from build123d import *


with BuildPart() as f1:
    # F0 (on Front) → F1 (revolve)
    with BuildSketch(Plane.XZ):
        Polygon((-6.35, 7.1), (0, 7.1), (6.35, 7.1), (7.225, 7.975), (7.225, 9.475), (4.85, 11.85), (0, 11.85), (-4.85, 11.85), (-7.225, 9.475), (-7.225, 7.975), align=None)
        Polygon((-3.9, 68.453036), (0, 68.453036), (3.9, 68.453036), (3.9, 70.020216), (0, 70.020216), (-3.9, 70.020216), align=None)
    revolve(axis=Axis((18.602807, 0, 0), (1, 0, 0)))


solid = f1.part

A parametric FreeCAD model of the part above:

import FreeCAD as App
import Part
import Sketcher

doc = App.newDocument("Part")
body = doc.addObject("PartDesign::Body", "Body")
body.AllowCompound = True

# Sketch on XZ plane
sketch1 = body.newObject("Sketcher::SketchObject", "Sketch")
sketch1.AttachmentSupport = (doc.getObject("XZ_Plane"), [""])
sketch1.MapMode = "FlatFace"
sketch1.addGeometry(Part.LineSegment(App.Vector(-6.3, 7.1, 0), App.Vector(6.3, 7.1, 0)), False)
sketch1.addGeometry(Part.LineSegment(App.Vector(6.3, 7.1, 0), App.Vector(7.2, 8, 0)), False)
sketch1.addGeometry(Part.LineSegment(App.Vector(7.2, 8, 0), App.Vector(7.2, 9.5, 0)), False)
sketch1.addGeometry(Part.LineSegment(App.Vector(7.2, 9.5, 0), App.Vector(4.8, 11.8, 0)), False)
sketch1.addGeometry(Part.LineSegment(App.Vector(4.8, 11.8, 0), App.Vector(-4.8, 11.8, 0)), False)
sketch1.addGeometry(Part.LineSegment(App.Vector(-4.8, 11.8, 0), App.Vector(-7.2, 9.5, 0)), False)
sketch1.addGeometry(Part.LineSegment(App.Vector(-7.2, 9.5, 0), App.Vector(-7.2, 8, 0)), False)
sketch1.addGeometry(Part.LineSegment(App.Vector(-7.2, 8, 0), App.Vector(-6.3, 7.1, 0)), False)
sketch1.addGeometry(Part.LineSegment(App.Vector(-3.9, 68.5, 0), App.Vector(3.9, 68.5, 0)), False)
sketch1.addGeometry(Part.LineSegment(App.Vector(3.9, 68.5, 0), App.Vector(3.9, 70, 0)), False)
sketch1.addGeometry(Part.LineSegment(App.Vector(3.9, 70, 0), App.Vector(-3.9, 70, 0)), False)
sketch1.addGeometry(Part.LineSegment(App.Vector(-3.9, 70, 0), App.Vector(-3.9, 68.5, 0)), False)
sketch1.addConstraint(Sketcher.Constraint("Coincident", 0, 2, 1, 1))
sketch1.addConstraint(Sketcher.Constraint("Coincident", 1, 2, 2, 1))
sketch1.addConstraint(Sketcher.Constraint("Coincident", 2, 2, 3, 1))
sketch1.addConstraint(Sketcher.Constraint("Coincident", 3, 2, 4, 1))
sketch1.addConstraint(Sketcher.Constraint("Coincident", 4, 2, 5, 1))
sketch1.addConstraint(Sketcher.Constraint("Coincident", 5, 2, 6, 1))
sketch1.addConstraint(Sketcher.Constraint("Coincident", 6, 2, 7, 1))
sketch1.addConstraint(Sketcher.Constraint("Coincident", 7, 2, 0, 1))
sketch1.addConstraint(Sketcher.Constraint("Coincident", 8, 2, 9, 1))
sketch1.addConstraint(Sketcher.Constraint("Coincident", 9, 2, 10, 1))
sketch1.addConstraint(Sketcher.Constraint("Coincident", 10, 2, 11, 1))
sketch1.addConstraint(Sketcher.Constraint("Coincident", 11, 2, 8, 1))
sketch1.addConstraint(Sketcher.Constraint("Horizontal", 0))
sketch1.addConstraint(Sketcher.Constraint("Vertical", 2))
sketch1.addConstraint(Sketcher.Constraint("Horizontal", 4))
sketch1.addConstraint(Sketcher.Constraint("Vertical", 6))
sketch1.addConstraint(Sketcher.Constraint("Horizontal", 8))
sketch1.addConstraint(Sketcher.Constraint("Vertical", 9))
sketch1.addConstraint(Sketcher.Constraint("Horizontal", 10))
sketch1.addConstraint(Sketcher.Constraint("Vertical", 11))
sketch1.addConstraint(Sketcher.Constraint("Symmetric", 2, 2, 5, 2, -2))
sketch1.addConstraint(Sketcher.Constraint("Perpendicular", 1, 3))
sketch1.addConstraint(Sketcher.Constraint("Perpendicular", 3, 5))
sketch1.addConstraint(Sketcher.Constraint("Perpendicular", 5, 7))
sketch1.addConstraint(Sketcher.Constraint("Horizontal", 1, 2, 6, 2))
sketch1.addConstraint(Sketcher.Constraint("Equal", 3, 5))
sketch1.addConstraint(Sketcher.Constraint("DistanceX", 0, 1, 0, 2, 12.7))
sketch1.addConstraint(Sketcher.Constraint("DistanceX", 4, 2, 4, 1, 9.7))
sketch1.addConstraint(Sketcher.Constraint("DistanceX", 8, 1, 8, 2, 7.8))
sketch1.addConstraint(Sketcher.Constraint("DistanceY", 2, 1, 2, 2, 1.5))
sketch1.addConstraint(Sketcher.Constraint("DistanceY", -1, 1, 0, 2, 7.1))
sketch1.addConstraint(Sketcher.Constraint("DistanceX", -1, 1, 8, 2, 3.9))
sketch1.addConstraint(Sketcher.Constraint("DistanceY", -1, 1, 3, 2, 11.85))
sketch1.addConstraint(Sketcher.Constraint("DistanceY", 9, 1, 9, 2, 1.56718))
sketch1.addConstraint(Sketcher.Constraint("DistanceY", -1, 1, 8, 2, 68.453036))
revolution = body.newObject("PartDesign::Revolution", "Revolution")
revolution.Profile = sketch1
revolution.ReferenceAxis = (sketch1, ["H_Axis"])
revolution.Angle = 360

doc.recompute()
